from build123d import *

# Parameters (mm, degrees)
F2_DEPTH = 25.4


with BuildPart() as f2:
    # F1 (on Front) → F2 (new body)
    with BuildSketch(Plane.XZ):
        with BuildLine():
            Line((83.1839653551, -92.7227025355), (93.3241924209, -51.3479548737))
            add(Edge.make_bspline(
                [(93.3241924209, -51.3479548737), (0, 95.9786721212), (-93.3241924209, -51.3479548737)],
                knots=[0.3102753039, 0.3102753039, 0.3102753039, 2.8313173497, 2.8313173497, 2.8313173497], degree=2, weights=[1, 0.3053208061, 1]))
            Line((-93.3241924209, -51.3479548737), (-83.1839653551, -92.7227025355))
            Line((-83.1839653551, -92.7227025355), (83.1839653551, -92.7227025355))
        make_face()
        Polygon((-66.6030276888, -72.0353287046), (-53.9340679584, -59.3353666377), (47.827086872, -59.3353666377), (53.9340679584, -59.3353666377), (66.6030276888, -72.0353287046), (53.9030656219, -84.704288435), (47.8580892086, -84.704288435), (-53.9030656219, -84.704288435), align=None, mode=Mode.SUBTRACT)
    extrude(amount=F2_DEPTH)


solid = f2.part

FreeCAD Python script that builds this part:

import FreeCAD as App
import Part
import Sketcher
from FreeCAD import Vector
Q = App.Units.Quantity

doc = App.newDocument("Part")
body = doc.addObject("PartDesign::Body", "Body")

# Sketch on XZ plane
sketch1 = doc.addObject("Sketcher::SketchObject", "Sketch")
body.addObject(sketch1)
sketch1.AttachmentSupport = (doc.XZ_Plane, [""])
sketch1.MapMode = "FlatFace"
sketch1.addGeometry([
    Part.LineSegment(Vector(83.183965, -92.722703, 0), Vector(93.324192, -51.347955, 0)),  # 0
    Part.BSplineCurve([Vector(93.324192, -51.347955, 0), Vector(0, 95.978672, 0), Vector(-93.324192, -51.347955, 0)], [3, 3], [0.310275304, 2.83131735], False, 2, [1, 0.305320806, 1], False),  # 1
    Part.LineSegment(Vector(-93.324192, -51.347955, 0), Vector(-83.183965, -92.722703, 0)),  # 2
    Part.LineSegment(Vector(-83.183965, -92.722703, 0), Vector(83.183965, -92.722703, 0)),  # 3
    Part.LineSegment(Vector(-53.903066, -84.704288, 0), Vector(-66.603028, -72.035329, 0)),  # 4
    Part.LineSegment(Vector(-66.603028, -72.035329, 0), Vector(-53.934068, -59.335367, 0)),  # 5
    Part.LineSegment(Vector(-53.934068, -59.335367, 0), Vector(53.934068, -59.335367, 0)),  # 6
    Part.LineSegment(Vector(53.934068, -59.335367, 0), Vector(66.603028, -72.035329, 0)),  # 7
    Part.LineSegment(Vector(66.603028, -72.035329, 0), Vector(53.903066, -84.704288, 0)),  # 8
    Part.LineSegment(Vector(53.903066, -84.704288, 0), Vector(-53.903066, -84.704288, 0)),  # 9
], False)
sketch1.addConstraint([
    Sketcher.Constraint("Block", 1),
    Sketcher.Constraint("Coincident", 0, 2, 1, 1),
    Sketcher.Constraint("Coincident", 1, 2, 2, 1),
    Sketcher.Constraint("Coincident", 2, 2, 3, 1),
    Sketcher.Constraint("Coincident", 3, 2, 0, 1),
    Sketcher.Constraint("Coincident", 4, 2, 5, 1),
    Sketcher.Constraint("Coincident", 5, 2, 6, 1),
    Sketcher.Constraint("Coincident", 6, 2, 7, 1),
    Sketcher.Constraint("Coincident", 7, 2, 8, 1),
    Sketcher.Constraint("Coincident", 8, 2, 9, 1),
    Sketcher.Constraint("Coincident", 9, 2, 4, 1),
    Sketcher.Constraint("Horizontal", 3),
    Sketcher.Constraint("Horizontal", 6),
    Sketcher.Constraint("Horizontal", 9),
    Sketcher.Constraint("Symmetric", 4, 2, 7, 2, -2),
    Sketcher.Constraint("Perpendicular", 4, 5),
    Sketcher.Constraint("Perpendicular", 7, 8),
    Sketcher.Constraint("Equal", 0, 2),
    Sketcher.Constraint("Equal", 4, 5),
    Sketcher.Constraint("Equal", 5, 7),
    Sketcher.Constraint("Angle", 4, Q("135.070019 deg")),
    Sketcher.Constraint("DistanceY", 2, 2, -1, 1, Q("3.6505001 in")),
    Sketcher.Constraint("DistanceX", 3, 1, 3, 2, Q("166.367931 mm")),
    Sketcher.Constraint("DistanceX", 9, 2, 9, 1, Q("107.806131 mm")),
    Sketcher.Constraint("Distance", 4, Q("17.93855 mm")),
    Sketcher.Constraint("DistanceY", 4, 2, -1, 1, Q("72.035329 mm")),
])
pad1 = doc.addObject("PartDesign::Pad", "Pad")
body.addObject(pad1)
pad1.Profile = sketch1
pad1.Length = Q("1 in")

doc.recompute()
